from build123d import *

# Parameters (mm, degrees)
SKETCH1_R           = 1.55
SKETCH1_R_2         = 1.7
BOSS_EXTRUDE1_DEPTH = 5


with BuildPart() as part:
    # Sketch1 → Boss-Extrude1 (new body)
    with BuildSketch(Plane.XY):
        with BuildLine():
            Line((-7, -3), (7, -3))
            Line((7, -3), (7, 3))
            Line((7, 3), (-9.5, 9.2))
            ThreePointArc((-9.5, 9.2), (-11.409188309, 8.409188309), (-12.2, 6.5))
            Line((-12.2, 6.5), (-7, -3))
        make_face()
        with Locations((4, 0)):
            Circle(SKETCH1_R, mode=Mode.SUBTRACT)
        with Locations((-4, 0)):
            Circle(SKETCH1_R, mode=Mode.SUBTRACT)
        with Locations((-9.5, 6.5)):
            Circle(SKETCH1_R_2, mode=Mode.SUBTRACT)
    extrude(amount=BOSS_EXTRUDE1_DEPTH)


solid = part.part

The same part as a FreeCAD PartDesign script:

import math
import FreeCAD as App
import Part
import Sketcher

V = App.Vector
Q = App.Units.Quantity

doc = App.newDocument("Part")
body = doc.addObject("PartDesign::Body", "Body")

# Sketch on XY plane
sketch1 = body.newObject("Sketcher::SketchObject", "Sketch")
sketch1.AttachmentSupport = (doc.getObject("XY_Plane"), [""])
sketch1.MapMode = "FlatFace"
sketch1.addGeometry(Part.LineSegment(V(-7, -3, 0), V(7, -3, 0)), False)
sketch1.addGeometry(Part.LineSegment(V(7, -3, 0), V(7, 3, 0)), False)
sketch1.addGeometry(Part.LineSegment(V(7, 3, 0), V(-9.5, 9.2, 0)), False)
sketch1.addGeometry(Part.ArcOfCircle(Part.Circle(V(-9.5, 6.5, 0), V(0, 0, 1), 2.7), math.radians(90), math.radians(180)), False)
sketch1.addGeometry(Part.LineSegment(V(-12.2, 6.5, 0), V(-7, -3, 0)), False)
sketch1.addGeometry(Part.Circle(V(-4, 0, 0), V(0, 0, 1), 1.55), False)
sketch1.addGeometry(Part.Circle(V(4, 0, 0), V(0, 0, 1), 1.55), False)
sketch1.addGeometry(Part.Circle(V(-9.5, 6.5, 0), V(0, 0, 1), 1.7), False)
sketch1.addConstraint(Sketcher.Constraint("Coincident", 0, 2, 1, 1))
sketch1.addConstraint(Sketcher.Constraint("Coincident", 1, 2, 2, 1))
sketch1.addConstraint(Sketcher.Constraint("Coincident", 2, 2, 3, 1))
sketch1.addConstraint(Sketcher.Constraint("Coincident", 3, 2, 4, 1))
sketch1.addConstraint(Sketcher.Constraint("Coincident", 4, 2, 0, 1))
sketch1.addConstraint(Sketcher.Constraint("Horizontal", 0))
sketch1.addConstraint(Sketcher.Constraint("Vertical", 1))
sketch1.addConstraint(Sketcher.Constraint("Coincident", 7, 3, 3, 3))
sketch1.addConstraint(Sketcher.Constraint("Equal", 5, 6))
sketch1.addConstraint(Sketcher.Constraint("Symmetric", 5, 3, 6, 3, -1, 1))
sketch1.addConstraint(Sketcher.Constraint("Symmetric", 1, 2, 4, 2, -1, 1))
sketch1.addConstraint(Sketcher.Constraint("PointOnObject", 5, 3, -1))
sketch1.addConstraint(Sketcher.Constraint("Horizontal", 7, 3, 3, 2))
sketch1.addConstraint(Sketcher.Constraint("Vertical", 7, 3, 2, 2))
sketch1.addConstraint(Sketcher.Constraint("Diameter", 5, Q("3.1 mm")))
sketch1.addConstraint(Sketcher.Constraint("Diameter", 7, Q("3.4 mm")))
sketch1.addConstraint(Sketcher.Constraint("Radius", 3, Q("2.7 mm")))
sketch1.addConstraint(Sketcher.Constraint("DistanceX", 0, 1, 0, 2, Q("14 mm")))
sketch1.addConstraint(Sketcher.Constraint("DistanceY", 1, 1, 1, 2, Q("6 mm")))
sketch1.addConstraint(Sketcher.Constraint("DistanceX", 5, 3, -1, 1, Q("4 mm")))
sketch1.addConstraint(Sketcher.Constraint("DistanceX", 3, 3, -1, 1, Q("9.5 mm")))
sketch1.addConstraint(Sketcher.Constraint("DistanceY", -1, 1, 3, 3, Q("6.5 mm")))
pad1 = body.newObject("PartDesign::Pad", "Pad")
pad1.Profile = sketch1
pad1.Length = 5

doc.recompute()
